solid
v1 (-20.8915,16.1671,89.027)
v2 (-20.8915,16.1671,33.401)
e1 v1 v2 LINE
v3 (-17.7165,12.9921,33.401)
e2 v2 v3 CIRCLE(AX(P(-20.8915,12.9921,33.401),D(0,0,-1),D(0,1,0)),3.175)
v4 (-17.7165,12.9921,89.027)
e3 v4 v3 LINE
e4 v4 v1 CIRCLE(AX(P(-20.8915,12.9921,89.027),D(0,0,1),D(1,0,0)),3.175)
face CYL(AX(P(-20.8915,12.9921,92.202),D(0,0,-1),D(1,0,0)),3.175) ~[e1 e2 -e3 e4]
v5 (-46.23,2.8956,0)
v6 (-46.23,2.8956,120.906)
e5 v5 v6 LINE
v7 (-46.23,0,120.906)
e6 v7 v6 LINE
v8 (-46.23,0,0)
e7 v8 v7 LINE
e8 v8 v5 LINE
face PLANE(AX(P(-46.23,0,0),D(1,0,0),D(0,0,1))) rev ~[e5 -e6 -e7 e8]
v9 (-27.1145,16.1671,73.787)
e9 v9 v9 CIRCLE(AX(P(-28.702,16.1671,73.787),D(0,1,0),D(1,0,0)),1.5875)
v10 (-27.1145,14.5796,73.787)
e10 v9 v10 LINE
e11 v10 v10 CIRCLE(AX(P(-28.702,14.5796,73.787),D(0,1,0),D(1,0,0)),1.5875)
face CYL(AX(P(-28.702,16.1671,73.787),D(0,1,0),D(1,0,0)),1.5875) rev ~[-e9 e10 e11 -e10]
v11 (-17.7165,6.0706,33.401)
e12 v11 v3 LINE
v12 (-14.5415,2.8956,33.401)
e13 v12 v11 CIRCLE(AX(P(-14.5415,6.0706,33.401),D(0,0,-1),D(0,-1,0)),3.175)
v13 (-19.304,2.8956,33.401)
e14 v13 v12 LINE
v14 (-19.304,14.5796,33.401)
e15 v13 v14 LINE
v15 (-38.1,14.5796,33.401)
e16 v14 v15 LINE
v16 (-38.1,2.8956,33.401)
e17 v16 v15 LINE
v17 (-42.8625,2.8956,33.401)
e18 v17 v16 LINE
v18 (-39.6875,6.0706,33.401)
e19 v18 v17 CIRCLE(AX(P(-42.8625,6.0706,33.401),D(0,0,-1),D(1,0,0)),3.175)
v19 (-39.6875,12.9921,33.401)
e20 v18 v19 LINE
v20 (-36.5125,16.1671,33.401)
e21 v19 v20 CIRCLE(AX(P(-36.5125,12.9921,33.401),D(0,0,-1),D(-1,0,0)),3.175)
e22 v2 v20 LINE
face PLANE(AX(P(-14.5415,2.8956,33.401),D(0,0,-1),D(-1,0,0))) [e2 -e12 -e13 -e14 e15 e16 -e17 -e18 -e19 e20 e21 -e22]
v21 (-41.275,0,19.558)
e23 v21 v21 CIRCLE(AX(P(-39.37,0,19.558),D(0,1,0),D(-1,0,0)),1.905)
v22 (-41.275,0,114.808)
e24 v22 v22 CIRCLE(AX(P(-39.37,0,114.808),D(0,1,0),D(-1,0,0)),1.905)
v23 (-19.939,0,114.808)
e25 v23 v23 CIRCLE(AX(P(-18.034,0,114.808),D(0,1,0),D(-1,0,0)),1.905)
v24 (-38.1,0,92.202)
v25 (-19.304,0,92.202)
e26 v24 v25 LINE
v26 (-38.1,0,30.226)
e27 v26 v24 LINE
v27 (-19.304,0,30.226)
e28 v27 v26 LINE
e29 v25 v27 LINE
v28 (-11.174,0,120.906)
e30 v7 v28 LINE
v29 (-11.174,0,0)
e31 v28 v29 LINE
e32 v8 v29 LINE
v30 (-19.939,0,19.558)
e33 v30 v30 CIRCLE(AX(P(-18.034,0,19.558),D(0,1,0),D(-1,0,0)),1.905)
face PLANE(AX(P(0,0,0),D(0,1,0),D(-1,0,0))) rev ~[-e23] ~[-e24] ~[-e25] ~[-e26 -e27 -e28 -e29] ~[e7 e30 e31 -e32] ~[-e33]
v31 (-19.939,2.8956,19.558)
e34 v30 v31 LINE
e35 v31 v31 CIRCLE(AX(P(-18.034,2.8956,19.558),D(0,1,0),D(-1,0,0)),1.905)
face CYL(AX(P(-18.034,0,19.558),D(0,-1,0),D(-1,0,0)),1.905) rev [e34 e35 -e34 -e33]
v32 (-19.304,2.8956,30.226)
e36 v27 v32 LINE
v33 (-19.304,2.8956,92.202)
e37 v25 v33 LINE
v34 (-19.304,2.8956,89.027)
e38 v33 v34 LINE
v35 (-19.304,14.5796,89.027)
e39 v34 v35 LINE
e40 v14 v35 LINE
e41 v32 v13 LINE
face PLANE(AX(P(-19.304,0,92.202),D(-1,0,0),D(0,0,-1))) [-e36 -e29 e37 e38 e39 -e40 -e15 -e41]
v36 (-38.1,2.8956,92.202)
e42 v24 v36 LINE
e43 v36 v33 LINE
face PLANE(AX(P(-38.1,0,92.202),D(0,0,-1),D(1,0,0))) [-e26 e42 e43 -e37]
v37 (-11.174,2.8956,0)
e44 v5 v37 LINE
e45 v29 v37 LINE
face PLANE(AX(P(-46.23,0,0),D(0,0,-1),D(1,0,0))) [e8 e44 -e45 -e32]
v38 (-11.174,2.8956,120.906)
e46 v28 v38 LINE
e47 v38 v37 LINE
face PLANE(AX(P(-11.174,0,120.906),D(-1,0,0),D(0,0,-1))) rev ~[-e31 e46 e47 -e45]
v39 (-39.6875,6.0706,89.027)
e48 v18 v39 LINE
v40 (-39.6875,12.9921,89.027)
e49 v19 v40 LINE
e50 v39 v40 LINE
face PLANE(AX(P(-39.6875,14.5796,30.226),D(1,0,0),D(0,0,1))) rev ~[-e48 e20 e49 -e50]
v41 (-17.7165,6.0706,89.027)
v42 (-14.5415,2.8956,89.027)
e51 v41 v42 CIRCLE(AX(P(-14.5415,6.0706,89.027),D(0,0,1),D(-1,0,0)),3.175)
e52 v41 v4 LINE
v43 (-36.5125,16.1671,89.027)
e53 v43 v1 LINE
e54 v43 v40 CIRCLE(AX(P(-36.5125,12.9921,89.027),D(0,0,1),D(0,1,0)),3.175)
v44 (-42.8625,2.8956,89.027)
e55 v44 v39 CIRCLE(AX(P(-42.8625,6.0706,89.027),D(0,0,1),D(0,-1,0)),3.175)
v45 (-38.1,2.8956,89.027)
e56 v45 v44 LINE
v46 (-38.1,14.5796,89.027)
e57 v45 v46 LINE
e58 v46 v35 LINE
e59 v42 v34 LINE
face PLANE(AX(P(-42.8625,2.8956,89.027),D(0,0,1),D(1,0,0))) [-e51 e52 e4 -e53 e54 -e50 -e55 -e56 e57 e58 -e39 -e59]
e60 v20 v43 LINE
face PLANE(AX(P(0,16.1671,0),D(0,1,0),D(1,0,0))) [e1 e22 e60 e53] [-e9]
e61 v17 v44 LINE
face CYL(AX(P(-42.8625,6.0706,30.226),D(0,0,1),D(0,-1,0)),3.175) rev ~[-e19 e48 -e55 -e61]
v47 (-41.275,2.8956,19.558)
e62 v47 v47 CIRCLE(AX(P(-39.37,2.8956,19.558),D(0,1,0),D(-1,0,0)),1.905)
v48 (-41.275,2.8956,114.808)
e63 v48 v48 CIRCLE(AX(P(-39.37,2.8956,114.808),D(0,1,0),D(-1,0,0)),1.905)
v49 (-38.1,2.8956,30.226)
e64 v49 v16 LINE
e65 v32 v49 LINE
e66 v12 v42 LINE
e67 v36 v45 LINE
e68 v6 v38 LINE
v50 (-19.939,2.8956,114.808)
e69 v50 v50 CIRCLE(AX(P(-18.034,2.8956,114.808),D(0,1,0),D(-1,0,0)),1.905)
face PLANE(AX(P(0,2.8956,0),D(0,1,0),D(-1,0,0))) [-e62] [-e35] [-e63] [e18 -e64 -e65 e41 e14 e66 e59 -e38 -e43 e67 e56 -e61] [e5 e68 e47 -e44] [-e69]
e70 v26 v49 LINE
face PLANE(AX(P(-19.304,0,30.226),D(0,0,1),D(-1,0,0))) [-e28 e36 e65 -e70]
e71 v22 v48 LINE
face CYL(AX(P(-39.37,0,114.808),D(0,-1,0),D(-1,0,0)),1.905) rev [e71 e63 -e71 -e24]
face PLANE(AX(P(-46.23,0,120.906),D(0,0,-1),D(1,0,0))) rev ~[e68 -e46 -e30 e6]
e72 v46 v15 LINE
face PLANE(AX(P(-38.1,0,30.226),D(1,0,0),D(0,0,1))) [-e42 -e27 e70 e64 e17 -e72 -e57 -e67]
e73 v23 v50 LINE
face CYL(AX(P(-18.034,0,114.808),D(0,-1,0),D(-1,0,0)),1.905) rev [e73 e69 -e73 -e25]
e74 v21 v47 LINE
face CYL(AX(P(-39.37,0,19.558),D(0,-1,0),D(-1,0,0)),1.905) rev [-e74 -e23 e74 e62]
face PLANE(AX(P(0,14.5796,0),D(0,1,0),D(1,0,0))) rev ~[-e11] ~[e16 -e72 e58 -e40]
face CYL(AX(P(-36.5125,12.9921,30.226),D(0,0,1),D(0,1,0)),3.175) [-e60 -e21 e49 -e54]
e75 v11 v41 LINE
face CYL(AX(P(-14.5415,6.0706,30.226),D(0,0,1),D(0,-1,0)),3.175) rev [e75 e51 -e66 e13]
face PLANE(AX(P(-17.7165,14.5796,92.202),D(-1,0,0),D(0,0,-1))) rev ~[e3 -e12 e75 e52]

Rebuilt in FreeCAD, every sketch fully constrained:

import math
import FreeCAD as App
import Part
import Sketcher
from FreeCAD import Vector
Q = App.Units.Quantity


def edges_at(feature, points):
    """Names of the edges that pass closest to the given points."""
    edges = feature.Shape.Edges
    near = lambda p: min(range(len(edges)), key=lambda i: edges[i].distToShape(Part.Vertex(*p))[0])
    return sorted({f"Edge{near(p) + 1}" for p in points})


def add_polygon(sketch, points):
    """Adds a closed chain of lines whose ends are joined by coincident constraints."""
    first, n = sketch.GeometryCount, len(points)
    for a, b in zip(points, points[1:] + points[:1]):
        sketch.addGeometry(Part.LineSegment(App.Vector(*a, 0), App.Vector(*b, 0)), False)
    for i in range(n):
        sketch.addConstraint(Sketcher.Constraint("Coincident", first + i, 2, first + (i + 1) % n, 1))

doc = App.newDocument("Part")
body = doc.addObject("PartDesign::Body", "Body")

# Sketch on XZ plane
sketch1 = doc.addObject("Sketcher::SketchObject", "Sketch")
body.addObject(sketch1)
sketch1.AttachmentSupport = (doc.XZ_Plane, [""])
sketch1.MapMode = "FlatFace"
add_polygon(sketch1, [(-46.2, 0), (-46.2, 120.9), (-11.2, 120.9), (-11.2, 0)])  # lines 0-3
sketch1.addGeometry(Part.Circle(Vector(-18, 19.6, 0), Vector(0, 0, 1), 1.9), False)  # 4
sketch1.addGeometry(Part.Circle(Vector(-39.4, 19.6, 0), Vector(0, 0, 1), 1.9), False)  # 5
sketch1.addGeometry(Part.Circle(Vector(-18, 114.8, 0), Vector(0, 0, 1), 1.9), False)  # 6
add_polygon(sketch1, [(-19.3, 92.2), (-38.1, 92.2), (-38.1, 30.2), (-19.3, 30.2)])  # lines 7-10
sketch1.addGeometry(Part.Circle(Vector(-39.4, 114.8, 0), Vector(0, 0, 1), 1.9), False)  # 11
sketch1.addConstraint(Sketcher.Constraint("Vertical", 0))
sketch1.addConstraint(Sketcher.Constraint("Horizontal", 1))
sketch1.addConstraint(Sketcher.Constraint("Vertical", 2))
sketch1.addConstraint(Sketcher.Constraint("Horizontal", 3))
sketch1.addConstraint(Sketcher.Constraint("Horizontal", 7))
sketch1.addConstraint(Sketcher.Constraint("Vertical", 8))
sketch1.addConstraint(Sketcher.Constraint("Horizontal", 9))
sketch1.addConstraint(Sketcher.Constraint("Vertical", 10))
sketch1.addConstraint(Sketcher.Constraint("Equal", 4, 5))
sketch1.addConstraint(Sketcher.Constraint("Equal", 5, 6))
sketch1.addConstraint(Sketcher.Constraint("Equal", 6, 11))
sketch1.addConstraint(Sketcher.Constraint("PointOnObject", 2, 2, -1))
sketch1.addConstraint(Sketcher.Constraint("Horizontal", 4, 3, 5, 3))
sketch1.addConstraint(Sketcher.Constraint("Horizontal", 6, 3, 11, 3))
sketch1.addConstraint(Sketcher.Constraint("Vertical", 4, 3, 6, 3))
sketch1.addConstraint(Sketcher.Constraint("Vertical", 5, 3, 11, 3))
sketch1.addConstraint(Sketcher.Constraint("Diameter", 4, Q("0.15 in")))
sketch1.addConstraint(Sketcher.Constraint("DistanceX", 7, 2, 7, 1, Q("0.74 in")))
sketch1.addConstraint(Sketcher.Constraint("DistanceY", 8, 2, 8, 1, Q("2.44 in")))
sketch1.addConstraint(Sketcher.Constraint("DistanceX", 7, 2, -1, 1, Q("1.5 in")))
sketch1.addConstraint(Sketcher.Constraint("DistanceX", 4, 3, -1, 1, Q("0.71 in")))
sketch1.addConstraint(Sketcher.Constraint("DistanceY", -1, 1, 4, 3, Q("0.77 in")))
sketch1.addConstraint(Sketcher.Constraint("DistanceX", 5, 3, -1, 1, Q("1.55 in")))
sketch1.addConstraint(Sketcher.Constraint("DistanceY", -1, 1, 6, 3, Q("4.52 in")))
sketch1.addConstraint(Sketcher.Constraint("DistanceY", -1, 1, 7, 2, Q("3.63 in")))
sketch1.addConstraint(Sketcher.Constraint("DistanceX", 1, 1, 1, 2, Q("35.056 mm")))
sketch1.addConstraint(Sketcher.Constraint("DistanceY", 0, 1, 0, 2, Q("120.906 mm")))
sketch1.addConstraint(Sketcher.Constraint("DistanceX", 0, 2, -1, 1, Q("46.23 mm")))
pad1 = doc.addObject("PartDesign::Pad", "Pad")
body.addObject(pad1)
pad1.Profile = sketch1
pad1.Length = Q("0.114 in")
pad1.Reversed = True

# Sketch on XZ plane
sketch2 = doc.addObject("Sketcher::SketchObject", "Sketch001")
body.addObject(sketch2)
sketch2.AttachmentSupport = (doc.XZ_Plane, [""])
sketch2.MapMode = "FlatFace"
sketch2.AttachmentOffset = App.Placement(Vector(0, 0, -0.114 * 25.4), App.Rotation())
add_polygon(sketch2, [(-39.7, 92.2), (-38.1, 92.2), (-38.1, 30.2), (-39.7, 30.2)])  # lines 0-3
add_polygon(sketch2, [(-19.3, 30.2), (-19.3, 92.2), (-17.7, 92.2), (-17.7, 30.2)])  # lines 4-7
sketch2.addConstraint(Sketcher.Constraint("Horizontal", 0))
sketch2.addConstraint(Sketcher.Constraint("Vertical", 1))
sketch2.addConstraint(Sketcher.Constraint("Horizontal", 2))
sketch2.addConstraint(Sketcher.Constraint("Vertical", 3))
sketch2.addConstraint(Sketcher.Constraint("Vertical", 4))
sketch2.addConstraint(Sketcher.Constraint("Horizontal", 5))
sketch2.addConstraint(Sketcher.Constraint("Vertical", 6))
sketch2.addConstraint(Sketcher.Constraint("Horizontal", 7))
sketch2.addConstraint(Sketcher.Constraint("Horizontal", 3, 2, 4, 2))
sketch2.addConstraint(Sketcher.Constraint("Horizontal", 2, 2, 6, 2))
sketch2.addConstraint(Sketcher.Constraint("Equal", 2, 5))
sketch2.addConstraint(Sketcher.Constraint("DistanceX", 0, 1, 0, 2, Q("0.0625 in")))
sketch2.addConstraint(Sketcher.Constraint("DistanceY", 1, 2, 1, 1, Q("2.44 in")))
sketch2.addConstraint(Sketcher.Constraint("DistanceX", 0, 2, -1, 1, Q("1.5 in")))
sketch2.addConstraint(Sketcher.Constraint("DistanceY", -1, 1, 0, 2, Q("3.63 in")))
sketch2.addConstraint(Sketcher.Constraint("DistanceX", 4, 2, -1, 1, Q("0.76 in")))
pad2 = doc.addObject("PartDesign::Pad", "Pad001")
body.addObject(pad2)
pad2.Profile = sketch2
pad2.Length = Q("0.46 in")
pad2.Reversed = True
doc.recompute()

fillet = doc.addObject("PartDesign::Fillet", "Fillet")
body.addObject(fillet)
fillet.Base = (pad2, edges_at(pad2, [(-17.716, 2.896, 61.214), (-39.688, 2.896, 61.214)]))
fillet.Radius = Q("0.125 in")

# Sketch on XZ plane
sketch3 = doc.addObject("Sketcher::SketchObject", "Sketch002")
body.addObject(sketch3)
sketch3.AttachmentSupport = (doc.XZ_Plane, [""])
sketch3.MapMode = "FlatFace"
sketch3.AttachmentOffset = App.Placement(Vector(0, 0, -0.574 * 25.4), App.Rotation())
add_polygon(sketch3, [(-40, 92), (-18, 92), (-18, 30), (-40, 30)])  # lines 0-3
sketch3.addConstraint(Sketcher.Constraint("Horizontal", 0))
sketch3.addConstraint(Sketcher.Constraint("Vertical", 1))
sketch3.addConstraint(Sketcher.Constraint("Horizontal", 2))
sketch3.addConstraint(Sketcher.Constraint("Vertical", 3))
sketch3.addConstraint(Sketcher.Constraint("DistanceY", 1, 2, 1, 1, Q("2.44 in")))
sketch3.addConstraint(Sketcher.Constraint("DistanceX", 0, 1, 0, 2, Q("0.865 in")))
sketch3.addConstraint(Sketcher.Constraint("DistanceY", -1, 1, 0, 2, Q("3.63 in")))
sketch3.addConstraint(Sketcher.Constraint("DistanceX", 2, 2, -1, 1, Q("1.5625 in")))
pad3 = doc.addObject("PartDesign::Pad", "Pad002")
body.addObject(pad3)
pad3.Profile = sketch3
pad3.Length = Q("0.0625 in")
pad3.Reversed = True
doc.recompute()

fillet2 = doc.addObject("PartDesign::Fillet", "Fillet001")
body.addObject(fillet2)
fillet2.Base = (pad3, edges_at(pad3, [(-39.688, 16.167, 61.214), (-17.716, 16.167, 61.214)]))
fillet2.Radius = Q("0.125 in")

# Sketch on XY plane
sketch4 = doc.addObject("Sketcher::SketchObject", "Sketch003")
body.addObject(sketch4)
sketch4.AttachmentSupport = (doc.XY_Plane, [""])
sketch4.MapMode = "FlatFace"
sketch4.AttachmentOffset = App.Placement(Vector(0, 0, 3.63 * 25.4), App.Rotation())
sketch4.addGeometry(Part.LineSegment(Vector(-17.7, 6.1, 0), Vector(-17.7, 13, 0)), False)
sketch4.addGeometry(Part.ArcOfCircle(Part.Circle(Vector(-20.9, 13, 0), Vector(0, 0, 1), 3.2), math.radians(0), math.radians(90)), False)
sketch4.addGeometry(Part.LineSegment(Vector(-20.9, 16.2, 0), Vector(-36.5, 16.2, 0)), False)
sketch4.addGeometry(Part.ArcOfCircle(Part.Circle(Vector(-36.5, 13, 0), Vector(0, 0, 1), 3.2), math.radians(90), math.radians(180)), False)
sketch4.addGeometry(Part.LineSegment(Vector(-39.7, 13, 0), Vector(-39.7, 6.1, 0)), False)
sketch4.addGeometry(Part.ArcOfCircle(Part.Circle(Vector(-42.9, 6.1, 0), Vector(0, 0, 1), 3.2), math.radians(-90), math.radians(0)), False)
sketch4.addGeometry(Part.LineSegment(Vector(-42.9, 2.9, 0), Vector(-38.1, 2.9, 0)), False)
sketch4.addGeometry(Part.LineSegment(Vector(-38.1, 2.9, 0), Vector(-38.1, 14.6, 0)), False)
sketch4.addGeometry(Part.LineSegment(Vector(-38.1, 14.6, 0), Vector(-19.3, 14.6, 0)), False)
sketch4.addGeometry(Part.LineSegment(Vector(-19.3, 14.6, 0), Vector(-19.3, 2.9, 0)), False)
sketch4.addGeometry(Part.LineSegment(Vector(-19.3, 2.9, 0), Vector(-14.5, 2.9, 0)), False)
sketch4.addGeometry(Part.ArcOfCircle(Part.Circle(Vector(-14.5, 6.1, 0), Vector(0, 0, 1), 3.2), math.radians(180), math.radians(270)), False)
sketch4.addConstraint(Sketcher.Constraint("Tangent", 0, 2, 1, 1))
sketch4.addConstraint(Sketcher.Constraint("Tangent", 1, 2, 2, 1))
sketch4.addConstraint(Sketcher.Constraint("Tangent", 2, 2, 3, 1))
sketch4.addConstraint(Sketcher.Constraint("Tangent", 3, 2, 4, 1))
sketch4.addConstraint(Sketcher.Constraint("Tangent", 4, 2, 5, 2))
sketch4.addConstraint(Sketcher.Constraint("Tangent", 5, 1, 6, 1))
sketch4.addConstraint(Sketcher.Constraint("Coincident", 6, 2, 7, 1))
sketch4.addConstraint(Sketcher.Constraint("Coincident", 7, 2, 8, 1))
sketch4.addConstraint(Sketcher.Constraint("Coincident", 8, 2, 9, 1))
sketch4.addConstraint(Sketcher.Constraint("Coincident", 9, 2, 10, 1))
sketch4.addConstraint(Sketcher.Constraint("Tangent", 10, 2, 11, 2))
sketch4.addConstraint(Sketcher.Constraint("Tangent", 11, 1, 0, 1))
sketch4.addConstraint(Sketcher.Constraint("Vertical", 0))
sketch4.addConstraint(Sketcher.Constraint("Horizontal", 2))
sketch4.addConstraint(Sketcher.Constraint("Vertical", 4))
sketch4.addConstraint(Sketcher.Constraint("Horizontal", 6))
sketch4.addConstraint(Sketcher.Constraint("Vertical", 7))
sketch4.addConstraint(Sketcher.Constraint("Horizontal", 8))
sketch4.addConstraint(Sketcher.Constraint("Vertical", 9))
sketch4.addConstraint(Sketcher.Constraint("Horizontal", 10))
sketch4.addConstraint(Sketcher.Constraint("Equal", 1, 3))
sketch4.addConstraint(Sketcher.Constraint("Equal", 3, 5))
sketch4.addConstraint(Sketcher.Constraint("Equal", 5, 11))
sketch4.addConstraint(Sketcher.Constraint("Horizontal", 5, 3, 11, 3))
sketch4.addConstraint(Sketcher.Constraint("Equal", 6, 10))
sketch4.addConstraint(Sketcher.Constraint("Radius", 1, Q("0.125 in")))
sketch4.addConstraint(Sketcher.Constraint("DistanceX", 8, 1, 8, 2, Q("0.74 in")))
sketch4.addConstraint(Sketcher.Constraint("DistanceY", 7, 1, 7, 2, Q("0.46 in")))
sketch4.addConstraint(Sketcher.Constraint("DistanceX", 6, 2, -1, 1, Q("1.5 in")))
sketch4.addConstraint(Sketcher.Constraint("DistanceX", 2, 2, 2, 1, Q("0.615 in")))
sketch4.addConstraint(Sketcher.Constraint("DistanceY", 0, 1, 0, 2, Q("0.2725 in")))
sketch4.addConstraint(Sketcher.Constraint("DistanceY", -1, 1, 5, 3, Q("0.239 in")))
pocket1 = doc.addObject("PartDesign::Pocket", "Pocket")
body.addObject(pocket1)
pocket1.Profile = sketch4
pocket1.Length = Q("0.125 in")

# Sketch on XZ plane
sketch5 = doc.addObject("Sketcher::SketchObject", "Sketch004")
body.addObject(sketch5)
sketch5.AttachmentSupport = (doc.XZ_Plane, [""])
sketch5.MapMode = "FlatFace"
sketch5.AttachmentOffset = App.Placement(Vector(0, 0, -0.6365 * 25.4), App.Rotation())
sketch5.addGeometry(Part.Circle(Vector(-28.7, 73.8, 0), Vector(0, 0, 1), 1.6), False)
sketch5.addConstraint(Sketcher.Constraint("Diameter", 0, Q("0.125 in")))
sketch5.addConstraint(Sketcher.Constraint("DistanceX", 0, 3, -1, 1, Q("1.13 in")))
sketch5.addConstraint(Sketcher.Constraint("DistanceY", -1, 1, 0, 3, Q("2.905 in")))
pocket2 = doc.addObject("PartDesign::Pocket", "Pocket001")
body.addObject(pocket2)
pocket2.Profile = sketch5
pocket2.Length = Q("0.0625 in")
pocket2.Reversed = True

# Sketch on XY plane
sketch6 = doc.addObject("Sketcher::SketchObject", "Sketch005")
body.addObject(sketch6)
sketch6.AttachmentSupport = (doc.XY_Plane, [""])
sketch6.MapMode = "FlatFace"
sketch6.AttachmentOffset = App.Placement(Vector(0, 0, 1.19 * 25.4), App.Rotation())
sketch6.addGeometry(Part.LineSegment(Vector(-36.5, 16.2, 0), Vector(-20.9, 16.2, 0)), False)
sketch6.addGeometry(Part.ArcOfCircle(Part.Circle(Vector(-20.9, 13, 0), Vector(0, 0, 1), 3.2), math.radians(0), math.radians(90)), False)
sketch6.addGeometry(Part.LineSegment(Vector(-17.7, 13, 0), Vector(-17.7, 6.1, 0)), False)
sketch6.addGeometry(Part.ArcOfCircle(Part.Circle(Vector(-14.5, 6.1, 0), Vector(0, 0, 1), 3.2), math.radians(180), math.radians(270)), False)
sketch6.addGeometry(Part.LineSegment(Vector(-14.5, 2.9, 0), Vector(-19.3, 2.9, 0)), False)
sketch6.addGeometry(Part.LineSegment(Vector(-19.3, 2.9, 0), Vector(-19.3, 14.6, 0)), False)
sketch6.addGeometry(Part.LineSegment(Vector(-19.3, 14.6, 0), Vector(-38.1, 14.6, 0)), False)
sketch6.addGeometry(Part.LineSegment(Vector(-38.1, 14.6, 0), Vector(-38.1, 2.9, 0)), False)
sketch6.addGeometry(Part.LineSegment(Vector(-38.1, 2.9, 0), Vector(-42.9, 2.9, 0)), False)
sketch6.addGeometry(Part.ArcOfCircle(Part.Circle(Vector(-42.9, 6.1, 0), Vector(0, 0, 1), 3.2), math.radians(-90), math.radians(0)), False)
sketch6.addGeometry(Part.LineSegment(Vector(-39.7, 6.1, 0), Vector(-39.7, 13, 0)), False)
sketch6.addGeometry(Part.ArcOfCircle(Part.Circle(Vector(-36.5, 13, 0), Vector(0, 0, 1), 3.2), math.radians(90), math.radians(180)), False)
sketch6.addConstraint(Sketcher.Constraint("Tangent", 0, 2, 1, 2))
sketch6.addConstraint(Sketcher.Constraint("Tangent", 1, 1, 2, 1))
sketch6.addConstraint(Sketcher.Constraint("Tangent", 2, 2, 3, 1))
sketch6.addConstraint(Sketcher.Constraint("Tangent", 3, 2, 4, 1))
sketch6.addConstraint(Sketcher.Constraint("Coincident", 4, 2, 5, 1))
sketch6.addConstraint(Sketcher.Constraint("Coincident", 5, 2, 6, 1))
sketch6.addConstraint(Sketcher.Constraint("Coincident", 6, 2, 7, 1))
sketch6.addConstraint(Sketcher.Constraint("Coincident", 7, 2, 8, 1))
sketch6.addConstraint(Sketcher.Constraint("Tangent", 8, 2, 9, 1))
sketch6.addConstraint(Sketcher.Constraint("Tangent", 9, 2, 10, 1))
sketch6.addConstraint(Sketcher.Constraint("Tangent", 10, 2, 11, 2))
sketch6.addConstraint(Sketcher.Constraint("Tangent", 11, 1, 0, 1))
sketch6.addConstraint(Sketcher.Constraint("Horizontal", 0))
sketch6.addConstraint(Sketcher.Constraint("Vertical", 2))
sketch6.addConstraint(Sketcher.Constraint("Horizontal", 4))
sketch6.addConstraint(Sketcher.Constraint("Vertical", 5))
sketch6.addConstraint(Sketcher.Constraint("Horizontal", 6))
sketch6.addConstraint(Sketcher.Constraint("Vertical", 7))
sketch6.addConstraint(Sketcher.Constraint("Horizontal", 8))
sketch6.addConstraint(Sketcher.Constraint("Vertical", 10))
sketch6.addConstraint(Sketcher.Constraint("Equal", 1, 3))
sketch6.addConstraint(Sketcher.Constraint("Equal", 3, 9))
sketch6.addConstraint(Sketcher.Constraint("Equal", 9, 11))
sketch6.addConstraint(Sketcher.Constraint("Horizontal", 3, 3, 9, 3))
sketch6.addConstraint(Sketcher.Constraint("Equal", 4, 8))
sketch6.addConstraint(Sketcher.Constraint("Radius", 1, Q("0.125 in")))
sketch6.addConstraint(Sketcher.Constraint("DistanceX", 6, 2, 6, 1, Q("0.74 in")))
sketch6.addConstraint(Sketcher.Constraint("DistanceY", 5, 1, 5, 2, Q("0.46 in")))
sketch6.addConstraint(Sketcher.Constraint("DistanceX", 6, 2, -1, 1, Q("1.5 in")))
sketch6.addConstraint(Sketcher.Constraint("DistanceX", 0, 1, 0, 2, Q("0.615 in")))
sketch6.addConstraint(Sketcher.Constraint("DistanceY", 2, 2, 2, 1, Q("0.2725 in")))
sketch6.addConstraint(Sketcher.Constraint("DistanceY", -1, 1, 3, 3, Q("0.239 in")))
pocket3 = doc.addObject("PartDesign::Pocket", "Pocket002")
body.addObject(pocket3)
pocket3.Profile = sketch6
pocket3.Length = Q("0.125 in")
pocket3.Reversed = True

doc.recompute()
